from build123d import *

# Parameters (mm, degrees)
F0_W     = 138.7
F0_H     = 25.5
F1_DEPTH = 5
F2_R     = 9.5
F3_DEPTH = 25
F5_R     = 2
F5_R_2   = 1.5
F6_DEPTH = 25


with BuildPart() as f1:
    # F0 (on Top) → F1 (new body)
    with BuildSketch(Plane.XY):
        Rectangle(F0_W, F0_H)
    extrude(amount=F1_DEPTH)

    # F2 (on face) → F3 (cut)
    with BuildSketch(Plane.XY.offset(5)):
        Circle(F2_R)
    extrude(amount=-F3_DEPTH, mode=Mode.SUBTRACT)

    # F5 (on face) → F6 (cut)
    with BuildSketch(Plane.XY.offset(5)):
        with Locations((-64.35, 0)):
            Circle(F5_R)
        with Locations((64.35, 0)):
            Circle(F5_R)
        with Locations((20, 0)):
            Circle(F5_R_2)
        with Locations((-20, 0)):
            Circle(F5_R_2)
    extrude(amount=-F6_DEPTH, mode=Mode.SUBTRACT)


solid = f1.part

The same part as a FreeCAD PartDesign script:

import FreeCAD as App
import Part
import Sketcher

V = App.Vector


def add_polygon(sketch, points):
    """Adds a closed chain of lines whose ends are joined by coincident constraints."""
    first, n = sketch.GeometryCount, len(points)
    for a, b in zip(points, points[1:] + points[:1]):
        sketch.addGeometry(Part.LineSegment(App.Vector(*a, 0), App.Vector(*b, 0)), False)
    for i in range(n):
        sketch.addConstraint(Sketcher.Constraint("Coincident", first + i, 2, first + (i + 1) % n, 1))

doc = App.newDocument("Part")
body = doc.addObject("PartDesign::Body", "Body")

# Sketch on XY plane
sketch1 = body.newObject("Sketcher::SketchObject", "Sketch")
sketch1.AttachmentSupport = (doc.getObject("XY_Plane"), [""])
sketch1.MapMode = "FlatFace"
add_polygon(sketch1, [(-69, 13), (-69, -13), (69, -13), (69, 13)])  # lines 0-3
sketch1.addConstraint([
    Sketcher.Constraint("Vertical", 0),
    Sketcher.Constraint("Horizontal", 1),
    Sketcher.Constraint("Vertical", 2),
    Sketcher.Constraint("Horizontal", 3),
    Sketcher.Constraint("Symmetric", 0, 2, 2, 2, -1, 1),
    Sketcher.Constraint("DistanceX", 1, 1, 1, 2, 138.7),
    Sketcher.Constraint("DistanceY", 0, 2, 0, 1, 25.5),
])
pad1 = body.newObject("PartDesign::Pad", "Pad")
pad1.Profile = sketch1
pad1.Length = 5

# Sketch on XY plane
sketch2 = body.newObject("Sketcher::SketchObject", "Sketch001")
sketch2.AttachmentSupport = (doc.getObject("XY_Plane"), [""])
sketch2.MapMode = "FlatFace"
sketch2.AttachmentOffset = App.Placement(V(0, 0, 5), App.Rotation())
sketch2.addGeometry(Part.Circle(V(0, 0, 0), V(0, 0, 1), 10), False)
sketch2.addConstraint([
    Sketcher.Constraint("Coincident", 0, 3, -1, 1),
    Sketcher.Constraint("Diameter", 0, 19.0),
])
pocket1 = body.newObject("PartDesign::Pocket", "Pocket")
pocket1.Profile = sketch2
pocket1.Length = 25

# Sketch on XY plane
sketch3 = body.newObject("Sketcher::SketchObject", "Sketch002")
sketch3.AttachmentSupport = (doc.getObject("XY_Plane"), [""])
sketch3.MapMode = "FlatFace"
sketch3.AttachmentOffset = App.Placement(V(0, 0, 5), App.Rotation())
sketch3.addGeometry([
    Part.Circle(V(-64.3, 0, 0), V(0, 0, 1), 2),
    Part.Circle(V(64.3, 0, 0), V(0, 0, 1), 2),
    Part.Circle(V(20, 0, 0), V(0, 0, 1), 1.5),
    Part.Circle(V(-20, 0, 0), V(0, 0, 1), 1.5),
], False)
sketch3.addConstraint([
    Sketcher.Constraint("Equal", 0, 1),
    Sketcher.Constraint("Equal", 2, 3),
    Sketcher.Constraint("Symmetric", 0, 3, 1, 3, -1, 1),
    Sketcher.Constraint("Symmetric", 2, 3, 3, 3, -1, 1),
    Sketcher.Constraint("PointOnObject", 0, 3, -1),
    Sketcher.Constraint("PointOnObject", 2, 3, -1),
    Sketcher.Constraint("Diameter", 0, 4.0),
    Sketcher.Constraint("Diameter", 2, 3.0),
    Sketcher.Constraint("DistanceX", -1, 1, 2, 3, 20.0),
    Sketcher.Constraint("DistanceX", 0, 3, 1, 3, 128.7),
])
pocket2 = body.newObject("PartDesign::Pocket", "Pocket001")
pocket2.Profile = sketch3
pocket2.Length = 25

doc.recompute()
